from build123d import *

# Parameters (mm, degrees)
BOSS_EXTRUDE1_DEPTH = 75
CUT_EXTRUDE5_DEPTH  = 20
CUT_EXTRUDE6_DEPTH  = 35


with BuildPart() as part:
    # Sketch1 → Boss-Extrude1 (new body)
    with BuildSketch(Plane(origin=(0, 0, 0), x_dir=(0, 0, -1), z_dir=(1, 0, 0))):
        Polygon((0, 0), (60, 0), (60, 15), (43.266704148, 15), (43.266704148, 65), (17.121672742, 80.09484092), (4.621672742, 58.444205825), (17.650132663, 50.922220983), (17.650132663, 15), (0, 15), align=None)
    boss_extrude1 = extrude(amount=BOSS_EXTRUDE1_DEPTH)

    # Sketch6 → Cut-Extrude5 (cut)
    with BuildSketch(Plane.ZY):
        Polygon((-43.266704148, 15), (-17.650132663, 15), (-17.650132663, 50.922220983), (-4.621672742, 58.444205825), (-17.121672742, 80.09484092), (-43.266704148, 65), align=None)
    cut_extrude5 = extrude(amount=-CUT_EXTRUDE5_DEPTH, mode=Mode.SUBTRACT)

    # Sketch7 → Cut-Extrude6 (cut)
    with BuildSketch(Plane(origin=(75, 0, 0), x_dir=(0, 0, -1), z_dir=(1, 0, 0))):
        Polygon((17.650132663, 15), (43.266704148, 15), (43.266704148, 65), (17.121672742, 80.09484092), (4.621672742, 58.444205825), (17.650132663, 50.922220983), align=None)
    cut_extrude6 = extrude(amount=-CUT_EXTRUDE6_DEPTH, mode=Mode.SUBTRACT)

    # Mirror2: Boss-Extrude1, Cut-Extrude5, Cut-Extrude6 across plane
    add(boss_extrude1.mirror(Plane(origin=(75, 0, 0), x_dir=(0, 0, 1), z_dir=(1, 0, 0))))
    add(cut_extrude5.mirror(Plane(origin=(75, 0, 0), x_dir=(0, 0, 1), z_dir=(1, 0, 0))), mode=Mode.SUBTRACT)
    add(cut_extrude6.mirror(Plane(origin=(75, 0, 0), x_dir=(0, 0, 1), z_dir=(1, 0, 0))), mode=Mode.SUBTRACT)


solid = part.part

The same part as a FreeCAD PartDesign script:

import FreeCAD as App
import Part
import Sketcher

V = App.Vector
Q = App.Units.Quantity


def add_polygon(sketch, points):
    """Adds a closed chain of lines whose ends are joined by coincident constraints."""
    first, n = sketch.GeometryCount, len(points)
    for a, b in zip(points, points[1:] + points[:1]):
        sketch.addGeometry(Part.LineSegment(App.Vector(*a, 0), App.Vector(*b, 0)), False)
    for i in range(n):
        sketch.addConstraint(Sketcher.Constraint("Coincident", first + i, 2, first + (i + 1) % n, 1))

doc = App.newDocument("Part")
body = doc.addObject("PartDesign::Body", "Body")

# Sketch on YZ plane
sketch1 = body.newObject("Sketcher::SketchObject", "Sketch")
sketch1.AttachmentSupport = (doc.getObject("YZ_Plane"), [""])
sketch1.MapMode = "FlatFace"
add_polygon(sketch1, [(0, 0), (0, -60), (15, -60), (15, -43), (65, -43), (80, -17), (58, -5), (51, -18), (15, -18), (15, 0)])  # lines 0-9
sketch1.addConstraint(Sketcher.Constraint("Vertical", 0))
sketch1.addConstraint(Sketcher.Constraint("Horizontal", 1))
sketch1.addConstraint(Sketcher.Constraint("Vertical", 2))
sketch1.addConstraint(Sketcher.Constraint("Horizontal", 3))
sketch1.addConstraint(Sketcher.Constraint("Horizontal", 7))
sketch1.addConstraint(Sketcher.Constraint("Vertical", 8))
sketch1.addConstraint(Sketcher.Constraint("Horizontal", 9))
sketch1.addConstraint(Sketcher.Constraint("Coincident", 9, 2, -1, 1))
sketch1.addConstraint(Sketcher.Constraint("Perpendicular", 4, 5))
sketch1.addConstraint(Sketcher.Constraint("Perpendicular", 5, 6))
sketch1.addConstraint(Sketcher.Constraint("Vertical", 2, 2, 7, 2))
sketch1.addConstraint(Sketcher.Constraint("DistanceX", 1, 1, 1, 2, Q("15 mm")))
sketch1.addConstraint(Sketcher.Constraint("DistanceX", 3, 1, 3, 2, Q("50 mm")))
sketch1.addConstraint(Sketcher.Constraint("DistanceY", 0, 2, 0, 1, Q("60 mm")))
sketch1.addConstraint(Sketcher.Constraint("Angle", 4, Q("60 deg")))
sketch1.addConstraint(Sketcher.Constraint("Distance", 5, Q("25 mm")))
sketch1.addConstraint(Sketcher.Constraint("DistanceX", 7, 2, 7, 1, Q("35.922221 mm")))
sketch1.addConstraint(Sketcher.Constraint("Distance", 4, Q("30.189682 mm")))
sketch1.addConstraint(Sketcher.Constraint("DistanceY", 2, 1, 2, 2, Q("16.733296 mm")))
pad1 = body.newObject("PartDesign::Pad", "Pad")
pad1.Profile = sketch1
pad1.Length = 75

# Sketch on YZ plane
sketch2 = body.newObject("Sketcher::SketchObject", "Sketch001")
sketch2.AttachmentSupport = (doc.getObject("YZ_Plane"), [""])
sketch2.MapMode = "FlatFace"
add_polygon(sketch2, [(15, -43), (15, -18), (51, -18), (58, -5), (80, -17), (65, -43)])  # lines 0-5
sketch2.addConstraint(Sketcher.Constraint("Vertical", 0))
sketch2.addConstraint(Sketcher.Constraint("Horizontal", 1))
sketch2.addConstraint(Sketcher.Constraint("Horizontal", 5))
sketch2.addConstraint(Sketcher.Constraint("Perpendicular", 2, 3))
sketch2.addConstraint(Sketcher.Constraint("Perpendicular", 3, 4))
sketch2.addConstraint(Sketcher.Constraint("DistanceX", 5, 2, 5, 1, Q("50 mm")))
sketch2.addConstraint(Sketcher.Constraint("Angle", 2, Q("60 deg")))
sketch2.addConstraint(Sketcher.Constraint("Distance", 3, Q("25 mm")))
sketch2.addConstraint(Sketcher.Constraint("DistanceX", -1, 1, 0, 2, Q("15 mm")))
sketch2.addConstraint(Sketcher.Constraint("DistanceX", 1, 1, 1, 2, Q("35.922221 mm")))
sketch2.addConstraint(Sketcher.Constraint("Distance", 2, Q("15.04397 mm")))
sketch2.addConstraint(Sketcher.Constraint("DistanceY", 0, 2, -1, 1, Q("17.650133 mm")))
pocket1 = body.newObject("PartDesign::Pocket", "Pocket")
pocket1.Profile = sketch2
pocket1.Length = 20
pocket1.Reversed = True

# Sketch on YZ plane
sketch3 = body.newObject("Sketcher::SketchObject", "Sketch002")
sketch3.AttachmentSupport = (doc.getObject("YZ_Plane"), [""])
sketch3.MapMode = "FlatFace"
sketch3.AttachmentOffset = App.Placement(V(0, 0, 75), App.Rotation())
add_polygon(sketch3, [(15, -18), (15, -43), (65, -43), (80, -17), (58, -5), (51, -18)])  # lines 0-5
sketch3.addConstraint(Sketcher.Constraint("Vertical", 0))
sketch3.addConstraint(Sketcher.Constraint("Horizontal", 1))
sketch3.addConstraint(Sketcher.Constraint("Horizontal", 5))
sketch3.addConstraint(Sketcher.Constraint("Perpendicular", 2, 3))
sketch3.addConstraint(Sketcher.Constraint("Perpendicular", 3, 4))
sketch3.addConstraint(Sketcher.Constraint("DistanceX", 1, 1, 1, 2, Q("50 mm")))
sketch3.addConstraint(Sketcher.Constraint("Angle", 2, Q("60 deg")))
sketch3.addConstraint(Sketcher.Constraint("Distance", 3, Q("25 mm")))
sketch3.addConstraint(Sketcher.Constraint("DistanceX", -1, 1, 0, 2, Q("15 mm")))
sketch3.addConstraint(Sketcher.Constraint("DistanceX", 5, 2, 5, 1, Q("35.922221 mm")))
sketch3.addConstraint(Sketcher.Constraint("Distance", 2, Q("30.189682 mm")))
sketch3.addConstraint(Sketcher.Constraint("DistanceY", 0, 2, -1, 1, Q("43.266704 mm")))
pocket2 = body.newObject("PartDesign::Pocket", "Pocket001")
pocket2.Profile = sketch3
pocket2.Length = 35
doc.recompute()

datumplane = body.newObject("PartDesign::Plane", "DatumPlane")
datumplane.AttachmentSupport = (doc.getObject("YZ_Plane"), [""])
datumplane.MapMode = "FlatFace"
datumplane.AttachmentOffset = App.Placement(V(0, 0, 75), App.Rotation())
mirrored = body.newObject("PartDesign::Mirrored", "Mirrored")
mirrored.Originals = [pad1, pocket1, pocket2]
mirrored.MirrorPlane = (datumplane, [""])
body.Tip = mirrored

doc.recompute()
